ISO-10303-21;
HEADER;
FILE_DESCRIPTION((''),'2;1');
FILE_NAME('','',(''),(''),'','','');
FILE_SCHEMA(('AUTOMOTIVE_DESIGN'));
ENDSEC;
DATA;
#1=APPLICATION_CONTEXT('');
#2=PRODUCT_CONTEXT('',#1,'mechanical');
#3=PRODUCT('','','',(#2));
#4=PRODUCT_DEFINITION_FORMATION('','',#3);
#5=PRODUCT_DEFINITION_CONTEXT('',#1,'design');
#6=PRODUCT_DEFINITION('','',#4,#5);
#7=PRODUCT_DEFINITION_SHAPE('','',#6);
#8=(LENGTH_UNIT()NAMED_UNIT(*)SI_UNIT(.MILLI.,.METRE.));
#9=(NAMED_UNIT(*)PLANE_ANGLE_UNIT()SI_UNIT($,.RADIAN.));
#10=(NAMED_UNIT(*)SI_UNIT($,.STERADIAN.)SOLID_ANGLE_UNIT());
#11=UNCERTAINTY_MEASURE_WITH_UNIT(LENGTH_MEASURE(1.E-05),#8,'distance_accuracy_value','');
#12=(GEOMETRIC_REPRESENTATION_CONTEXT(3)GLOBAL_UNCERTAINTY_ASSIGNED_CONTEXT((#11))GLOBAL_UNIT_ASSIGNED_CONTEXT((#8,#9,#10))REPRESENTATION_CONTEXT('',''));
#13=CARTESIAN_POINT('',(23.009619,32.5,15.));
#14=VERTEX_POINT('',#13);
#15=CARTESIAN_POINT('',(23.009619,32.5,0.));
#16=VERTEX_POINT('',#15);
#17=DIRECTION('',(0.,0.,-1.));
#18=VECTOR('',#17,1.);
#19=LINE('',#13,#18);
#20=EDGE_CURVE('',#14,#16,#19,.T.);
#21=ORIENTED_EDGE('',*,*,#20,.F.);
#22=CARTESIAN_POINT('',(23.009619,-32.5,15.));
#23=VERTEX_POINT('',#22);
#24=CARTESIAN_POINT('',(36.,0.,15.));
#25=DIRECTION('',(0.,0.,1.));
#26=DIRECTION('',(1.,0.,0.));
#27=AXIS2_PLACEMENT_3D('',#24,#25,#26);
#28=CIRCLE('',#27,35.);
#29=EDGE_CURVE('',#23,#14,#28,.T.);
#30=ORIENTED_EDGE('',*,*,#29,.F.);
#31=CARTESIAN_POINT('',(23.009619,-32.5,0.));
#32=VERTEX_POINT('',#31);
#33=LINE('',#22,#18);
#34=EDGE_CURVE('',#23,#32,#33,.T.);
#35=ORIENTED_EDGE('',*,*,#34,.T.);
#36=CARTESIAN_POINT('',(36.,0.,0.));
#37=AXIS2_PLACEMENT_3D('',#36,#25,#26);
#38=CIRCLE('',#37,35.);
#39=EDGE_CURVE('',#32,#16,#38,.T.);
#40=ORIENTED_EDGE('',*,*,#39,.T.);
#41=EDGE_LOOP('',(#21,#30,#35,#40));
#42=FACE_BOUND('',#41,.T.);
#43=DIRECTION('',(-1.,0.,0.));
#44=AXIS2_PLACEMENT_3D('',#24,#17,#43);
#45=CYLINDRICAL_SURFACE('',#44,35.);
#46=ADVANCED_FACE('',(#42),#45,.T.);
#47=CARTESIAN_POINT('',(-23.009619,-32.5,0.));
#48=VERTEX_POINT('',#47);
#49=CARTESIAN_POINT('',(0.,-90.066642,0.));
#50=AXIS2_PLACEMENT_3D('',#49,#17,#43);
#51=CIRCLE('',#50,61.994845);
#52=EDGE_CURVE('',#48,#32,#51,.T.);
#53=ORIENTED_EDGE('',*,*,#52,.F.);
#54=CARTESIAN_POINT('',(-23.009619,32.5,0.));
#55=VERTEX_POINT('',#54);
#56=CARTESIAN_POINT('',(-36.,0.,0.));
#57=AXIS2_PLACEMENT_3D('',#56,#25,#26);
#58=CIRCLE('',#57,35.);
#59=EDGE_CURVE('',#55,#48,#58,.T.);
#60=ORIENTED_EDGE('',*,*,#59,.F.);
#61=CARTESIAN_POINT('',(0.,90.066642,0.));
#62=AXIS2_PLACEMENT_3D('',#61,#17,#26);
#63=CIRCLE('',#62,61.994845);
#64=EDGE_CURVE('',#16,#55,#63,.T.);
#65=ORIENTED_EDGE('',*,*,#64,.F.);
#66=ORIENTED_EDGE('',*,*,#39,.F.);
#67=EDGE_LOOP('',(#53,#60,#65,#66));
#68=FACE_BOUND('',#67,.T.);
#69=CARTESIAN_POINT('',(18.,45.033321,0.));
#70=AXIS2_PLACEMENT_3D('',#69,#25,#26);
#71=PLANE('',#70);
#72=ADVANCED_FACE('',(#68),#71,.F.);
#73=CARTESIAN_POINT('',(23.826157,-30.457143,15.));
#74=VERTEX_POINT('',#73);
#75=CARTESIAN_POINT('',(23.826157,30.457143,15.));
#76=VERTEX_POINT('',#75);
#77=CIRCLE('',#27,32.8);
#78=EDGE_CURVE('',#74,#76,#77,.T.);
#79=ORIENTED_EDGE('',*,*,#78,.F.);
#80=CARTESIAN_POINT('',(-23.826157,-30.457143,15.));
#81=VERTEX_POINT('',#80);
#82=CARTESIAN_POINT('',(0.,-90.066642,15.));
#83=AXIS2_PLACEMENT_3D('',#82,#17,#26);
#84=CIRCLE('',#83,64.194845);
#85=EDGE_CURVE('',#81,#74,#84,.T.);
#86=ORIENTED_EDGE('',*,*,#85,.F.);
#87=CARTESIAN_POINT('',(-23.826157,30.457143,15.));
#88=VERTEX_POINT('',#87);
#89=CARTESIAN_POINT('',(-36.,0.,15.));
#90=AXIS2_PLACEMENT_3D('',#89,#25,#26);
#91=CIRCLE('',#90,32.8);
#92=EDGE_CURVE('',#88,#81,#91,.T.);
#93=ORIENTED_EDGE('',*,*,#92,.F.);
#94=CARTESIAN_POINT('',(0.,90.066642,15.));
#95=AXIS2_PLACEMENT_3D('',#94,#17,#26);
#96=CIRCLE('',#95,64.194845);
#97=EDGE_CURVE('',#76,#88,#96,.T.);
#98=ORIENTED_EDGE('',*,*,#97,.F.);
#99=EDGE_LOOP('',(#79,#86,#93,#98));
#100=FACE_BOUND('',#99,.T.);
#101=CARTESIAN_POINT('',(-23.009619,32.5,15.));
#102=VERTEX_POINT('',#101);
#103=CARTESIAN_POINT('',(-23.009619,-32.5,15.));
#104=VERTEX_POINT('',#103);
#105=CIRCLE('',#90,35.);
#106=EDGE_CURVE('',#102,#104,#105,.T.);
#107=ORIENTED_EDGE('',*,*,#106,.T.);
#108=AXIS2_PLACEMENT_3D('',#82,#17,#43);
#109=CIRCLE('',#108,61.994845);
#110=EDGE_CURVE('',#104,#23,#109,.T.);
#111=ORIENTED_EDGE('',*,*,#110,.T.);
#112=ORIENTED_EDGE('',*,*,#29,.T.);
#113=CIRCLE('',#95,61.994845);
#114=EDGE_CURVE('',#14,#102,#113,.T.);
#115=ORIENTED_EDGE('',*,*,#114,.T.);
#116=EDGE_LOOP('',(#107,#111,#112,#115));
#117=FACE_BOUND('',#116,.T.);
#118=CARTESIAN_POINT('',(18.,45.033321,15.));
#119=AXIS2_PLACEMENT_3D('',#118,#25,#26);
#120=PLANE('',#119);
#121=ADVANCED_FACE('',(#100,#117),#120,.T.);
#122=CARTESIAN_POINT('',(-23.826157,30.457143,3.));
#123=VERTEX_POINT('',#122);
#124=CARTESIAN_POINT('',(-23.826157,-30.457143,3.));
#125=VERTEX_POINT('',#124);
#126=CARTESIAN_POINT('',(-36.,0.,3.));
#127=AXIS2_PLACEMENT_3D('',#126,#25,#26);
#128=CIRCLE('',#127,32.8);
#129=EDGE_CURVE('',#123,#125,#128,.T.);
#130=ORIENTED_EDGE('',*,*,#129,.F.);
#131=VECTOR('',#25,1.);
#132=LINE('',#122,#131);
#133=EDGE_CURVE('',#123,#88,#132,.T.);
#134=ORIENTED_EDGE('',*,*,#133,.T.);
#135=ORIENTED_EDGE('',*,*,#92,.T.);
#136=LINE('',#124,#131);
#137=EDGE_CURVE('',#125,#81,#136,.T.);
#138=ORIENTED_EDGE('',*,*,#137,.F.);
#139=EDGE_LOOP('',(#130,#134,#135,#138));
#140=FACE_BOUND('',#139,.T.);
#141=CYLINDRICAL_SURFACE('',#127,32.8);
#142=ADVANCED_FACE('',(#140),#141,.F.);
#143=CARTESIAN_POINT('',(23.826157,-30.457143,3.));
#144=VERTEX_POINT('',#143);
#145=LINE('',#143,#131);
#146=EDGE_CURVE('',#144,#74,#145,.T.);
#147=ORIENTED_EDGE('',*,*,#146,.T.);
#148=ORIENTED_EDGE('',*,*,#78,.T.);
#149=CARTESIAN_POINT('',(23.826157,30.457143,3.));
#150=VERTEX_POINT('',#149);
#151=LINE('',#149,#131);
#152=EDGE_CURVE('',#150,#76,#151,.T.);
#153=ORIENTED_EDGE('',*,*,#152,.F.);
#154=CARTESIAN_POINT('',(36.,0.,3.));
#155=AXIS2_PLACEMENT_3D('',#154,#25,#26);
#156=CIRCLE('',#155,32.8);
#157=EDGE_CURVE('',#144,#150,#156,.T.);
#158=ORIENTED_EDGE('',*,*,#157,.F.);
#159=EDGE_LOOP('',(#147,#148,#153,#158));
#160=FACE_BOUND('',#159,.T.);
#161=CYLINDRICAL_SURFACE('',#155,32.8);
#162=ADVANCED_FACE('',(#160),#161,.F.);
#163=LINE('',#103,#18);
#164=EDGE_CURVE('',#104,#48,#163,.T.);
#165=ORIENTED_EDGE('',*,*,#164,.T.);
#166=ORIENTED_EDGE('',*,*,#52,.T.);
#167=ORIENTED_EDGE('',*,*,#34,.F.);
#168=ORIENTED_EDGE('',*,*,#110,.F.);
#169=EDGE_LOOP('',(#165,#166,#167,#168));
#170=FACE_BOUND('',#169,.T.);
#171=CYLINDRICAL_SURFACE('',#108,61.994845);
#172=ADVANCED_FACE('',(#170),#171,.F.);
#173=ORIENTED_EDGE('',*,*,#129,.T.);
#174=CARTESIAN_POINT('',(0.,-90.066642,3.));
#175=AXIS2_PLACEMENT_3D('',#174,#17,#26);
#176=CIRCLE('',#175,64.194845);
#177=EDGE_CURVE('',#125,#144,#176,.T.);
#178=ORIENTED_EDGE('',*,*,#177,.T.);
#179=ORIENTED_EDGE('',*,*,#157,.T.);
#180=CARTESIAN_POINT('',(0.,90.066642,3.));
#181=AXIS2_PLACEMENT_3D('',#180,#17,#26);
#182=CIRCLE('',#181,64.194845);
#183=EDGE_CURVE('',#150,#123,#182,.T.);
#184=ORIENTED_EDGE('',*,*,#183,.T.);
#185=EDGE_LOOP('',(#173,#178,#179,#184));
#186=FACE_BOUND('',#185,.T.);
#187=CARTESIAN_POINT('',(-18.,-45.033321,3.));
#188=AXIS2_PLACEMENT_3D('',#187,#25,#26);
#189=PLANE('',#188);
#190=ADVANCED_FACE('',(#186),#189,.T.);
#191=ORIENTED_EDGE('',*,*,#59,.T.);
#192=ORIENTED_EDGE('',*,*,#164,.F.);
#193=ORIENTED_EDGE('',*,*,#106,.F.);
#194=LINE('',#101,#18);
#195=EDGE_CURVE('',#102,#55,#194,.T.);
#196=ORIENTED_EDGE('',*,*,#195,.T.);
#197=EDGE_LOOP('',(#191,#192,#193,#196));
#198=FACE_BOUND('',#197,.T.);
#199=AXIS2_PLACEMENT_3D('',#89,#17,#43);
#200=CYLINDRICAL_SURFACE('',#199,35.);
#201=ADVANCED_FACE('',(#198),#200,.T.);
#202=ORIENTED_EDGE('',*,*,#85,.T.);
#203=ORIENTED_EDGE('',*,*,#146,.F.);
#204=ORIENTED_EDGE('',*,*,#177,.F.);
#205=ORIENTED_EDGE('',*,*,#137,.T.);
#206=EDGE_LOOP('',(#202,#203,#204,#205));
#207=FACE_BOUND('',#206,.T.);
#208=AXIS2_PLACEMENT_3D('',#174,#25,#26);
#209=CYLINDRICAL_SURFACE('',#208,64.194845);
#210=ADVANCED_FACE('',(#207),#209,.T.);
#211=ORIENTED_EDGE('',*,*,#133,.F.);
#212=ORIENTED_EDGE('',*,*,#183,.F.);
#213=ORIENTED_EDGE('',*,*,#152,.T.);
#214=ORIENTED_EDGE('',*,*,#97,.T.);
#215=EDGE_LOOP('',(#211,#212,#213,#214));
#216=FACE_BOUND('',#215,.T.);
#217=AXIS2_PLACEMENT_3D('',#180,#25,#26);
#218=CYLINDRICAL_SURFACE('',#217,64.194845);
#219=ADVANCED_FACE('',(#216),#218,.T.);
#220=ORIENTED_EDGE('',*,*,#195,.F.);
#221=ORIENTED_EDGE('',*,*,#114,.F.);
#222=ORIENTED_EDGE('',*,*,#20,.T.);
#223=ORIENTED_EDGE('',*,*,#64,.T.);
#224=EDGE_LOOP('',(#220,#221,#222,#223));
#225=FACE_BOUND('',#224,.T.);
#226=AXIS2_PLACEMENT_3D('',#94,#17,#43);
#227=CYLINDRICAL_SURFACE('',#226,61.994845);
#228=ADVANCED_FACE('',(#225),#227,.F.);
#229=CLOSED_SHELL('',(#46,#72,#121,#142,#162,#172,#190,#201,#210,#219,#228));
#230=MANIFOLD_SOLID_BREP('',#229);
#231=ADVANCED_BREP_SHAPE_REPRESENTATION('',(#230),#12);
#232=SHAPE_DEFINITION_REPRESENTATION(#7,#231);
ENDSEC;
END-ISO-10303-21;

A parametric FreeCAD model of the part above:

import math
import FreeCAD as App
import Part
import Sketcher
from FreeCAD import Vector
Q = App.Units.Quantity

doc = App.newDocument("Part")
body = doc.addObject("PartDesign::Body", "Body")

# Sketch on XY plane
sketch1 = body.newObject("Sketcher::SketchObject", "Sketch")
sketch1.AttachmentSupport = (doc.getObject("XY_Plane"), [""])
sketch1.MapMode = "FlatFace"
sketch1.addGeometry([
    Part.ArcOfCircle(Part.Circle(Vector(-36, 0, 0), Vector(0, 0, 1), 35), math.radians(68), math.radians(292)),
    Part.ArcOfCircle(Part.Circle(Vector(0, -90, 0), Vector(0, 0, 1), 62), math.radians(68), math.radians(112)),
    Part.ArcOfCircle(Part.Circle(Vector(36, 0, 0), Vector(0, 0, 1), 35), math.radians(-112), math.radians(112)),
    Part.ArcOfCircle(Part.Circle(Vector(0, 90, 0), Vector(0, 0, 1), 62), math.radians(-112), math.radians(-68)),
], False)
sketch1.addConstraint([
    Sketcher.Constraint("Tangent", 0, 2, 1, 2),
    Sketcher.Constraint("Tangent", 1, 1, 2, 1),
    Sketcher.Constraint("Tangent", 2, 2, 3, 2),
    Sketcher.Constraint("Tangent", 3, 1, 0, 1),
    Sketcher.Constraint("Equal", 0, 2),
    Sketcher.Constraint("Equal", 1, 3),
    Sketcher.Constraint("Symmetric", 0, 3, 2, 3, -1, 1),
    Sketcher.Constraint("PointOnObject", 0, 3, -1),
    Sketcher.Constraint("Radius", 0, Q("35 mm")),
    Sketcher.Constraint("DistanceX", 0, 3, -1, 1, Q("36 mm")),
    Sketcher.Constraint("DistanceY", 0, 2, 2, 2, Q("65 mm")),
])
pad1 = body.newObject("PartDesign::Pad", "Pad")
pad1.Profile = sketch1
pad1.Length = 15

# Sketch on XY plane
sketch2 = body.newObject("Sketcher::SketchObject", "Sketch001")
sketch2.AttachmentSupport = (doc.getObject("XY_Plane"), [""])
sketch2.MapMode = "FlatFace"
sketch2.AttachmentOffset = App.Placement(Vector(0, 0, 15), App.Rotation())
sketch2.addGeometry([
    Part.ArcOfCircle(Part.Circle(Vector(0, 90, 0), Vector(0, 0, 1), 64), math.radians(-112), math.radians(-68)),
    Part.ArcOfCircle(Part.Circle(Vector(-36, 0, 0), Vector(0, 0, 1), 33), math.radians(68), math.radians(292)),
    Part.ArcOfCircle(Part.Circle(Vector(0, -90, 0), Vector(0, 0, 1), 64), math.radians(68), math.radians(112)),
    Part.ArcOfCircle(Part.Circle(Vector(36, 0, 0), Vector(0, 0, 1), 33), math.radians(-112), math.radians(112)),
], False)
sketch2.addConstraint([
    Sketcher.Constraint("Tangent", 0, 1, 1, 1),
    Sketcher.Constraint("Tangent", 1, 2, 2, 2),
    Sketcher.Constraint("Tangent", 2, 1, 3, 1),
    Sketcher.Constraint("Tangent", 3, 2, 0, 2),
    Sketcher.Constraint("Equal", 0, 2),
    Sketcher.Constraint("Equal", 1, 3),
    Sketcher.Constraint("Symmetric", 0, 3, 2, 3, -1, 1),
    Sketcher.Constraint("PointOnObject", 0, 3, -2),
    Sketcher.Constraint("Radius", 1, Q("32.8 mm")),
    Sketcher.Constraint("DistanceX", 1, 3, -1, 1, Q("36 mm")),
    Sketcher.Constraint("Radius", 0, Q("64.194845 mm")),
])
pocket1 = body.newObject("PartDesign::Pocket", "Pocket")
pocket1.Profile = sketch2
pocket1.Length = 12

doc.recompute()
